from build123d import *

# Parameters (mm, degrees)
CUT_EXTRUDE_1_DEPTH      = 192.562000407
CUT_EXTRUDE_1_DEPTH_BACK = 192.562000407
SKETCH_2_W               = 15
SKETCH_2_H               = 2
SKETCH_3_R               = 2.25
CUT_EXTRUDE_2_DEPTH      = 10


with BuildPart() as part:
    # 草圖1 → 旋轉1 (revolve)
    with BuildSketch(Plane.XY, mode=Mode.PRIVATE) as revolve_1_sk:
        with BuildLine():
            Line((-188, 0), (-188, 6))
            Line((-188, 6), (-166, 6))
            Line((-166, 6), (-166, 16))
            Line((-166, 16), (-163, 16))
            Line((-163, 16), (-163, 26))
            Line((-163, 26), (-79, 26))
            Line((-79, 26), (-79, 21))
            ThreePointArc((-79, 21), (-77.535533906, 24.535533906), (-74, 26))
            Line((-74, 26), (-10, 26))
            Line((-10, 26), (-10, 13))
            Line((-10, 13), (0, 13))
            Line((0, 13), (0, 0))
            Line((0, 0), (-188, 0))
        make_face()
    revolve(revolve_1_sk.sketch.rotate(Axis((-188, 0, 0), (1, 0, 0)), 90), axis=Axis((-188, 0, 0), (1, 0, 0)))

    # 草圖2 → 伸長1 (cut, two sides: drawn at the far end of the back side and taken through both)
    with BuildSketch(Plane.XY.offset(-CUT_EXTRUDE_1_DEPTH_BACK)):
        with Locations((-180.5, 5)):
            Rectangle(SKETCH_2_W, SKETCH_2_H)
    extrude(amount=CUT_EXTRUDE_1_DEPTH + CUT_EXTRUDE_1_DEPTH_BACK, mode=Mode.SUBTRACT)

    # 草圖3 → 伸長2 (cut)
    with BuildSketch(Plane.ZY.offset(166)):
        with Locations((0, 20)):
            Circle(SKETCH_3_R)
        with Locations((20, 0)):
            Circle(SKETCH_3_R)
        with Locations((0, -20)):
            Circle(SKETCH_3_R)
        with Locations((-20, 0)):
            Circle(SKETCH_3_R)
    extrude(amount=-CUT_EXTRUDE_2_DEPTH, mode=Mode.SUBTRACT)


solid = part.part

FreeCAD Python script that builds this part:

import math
import FreeCAD as App
import Part
import Sketcher

V = App.Vector

doc = App.newDocument("Part")
body = doc.addObject("PartDesign::Body", "Body")

# Sketch on XY plane
sketch1 = body.newObject("Sketcher::SketchObject", "Sketch")
sketch1.AttachmentSupport = (doc.getObject("XY_Plane"), [""])
sketch1.MapMode = "FlatFace"
sketch1.addGeometry([
    Part.LineSegment(V(-188, 6, 0), V(-188, 0, 0)),  # 0
    Part.LineSegment(V(-188, 0, 0), V(0, 0, 0)),  # 1
    Part.LineSegment(V(0, 0, 0), V(0, 13, 0)),  # 2
    Part.LineSegment(V(0, 13, 0), V(-10, 13, 0)),  # 3
    Part.LineSegment(V(-10, 13, 0), V(-10, 26, 0)),  # 4
    Part.LineSegment(V(-10, 26, 0), V(-74, 26, 0)),  # 5
    Part.ArcOfCircle(Part.Circle(V(-74, 21, 0), V(0, 0, 1), 5), math.radians(90), math.radians(180)),  # 6
    Part.LineSegment(V(-79, 21, 0), V(-79, 26, 0)),  # 7
    Part.LineSegment(V(-79, 26, 0), V(-163, 26, 0)),  # 8
    Part.LineSegment(V(-163, 26, 0), V(-163, 16, 0)),  # 9
    Part.LineSegment(V(-163, 16, 0), V(-166, 16, 0)),  # 10
    Part.LineSegment(V(-166, 16, 0), V(-166, 6, 0)),  # 11
    Part.LineSegment(V(-166, 6, 0), V(-188, 6, 0)),  # 12
], False)
sketch1.addConstraint([
    Sketcher.Constraint("Coincident", 0, 2, 1, 1),
    Sketcher.Constraint("Coincident", 1, 2, 2, 1),
    Sketcher.Constraint("Coincident", 2, 2, 3, 1),
    Sketcher.Constraint("Coincident", 3, 2, 4, 1),
    Sketcher.Constraint("Coincident", 4, 2, 5, 1),
    Sketcher.Constraint("Tangent", 5, 2, 6, 1),
    Sketcher.Constraint("Tangent", 6, 2, 7, 1),
    Sketcher.Constraint("Coincident", 7, 2, 8, 1),
    Sketcher.Constraint("Coincident", 8, 2, 9, 1),
    Sketcher.Constraint("Coincident", 9, 2, 10, 1),
    Sketcher.Constraint("Coincident", 10, 2, 11, 1),
    Sketcher.Constraint("Coincident", 11, 2, 12, 1),
    Sketcher.Constraint("Coincident", 12, 2, 0, 1),
    Sketcher.Constraint("Vertical", 0),
    Sketcher.Constraint("Horizontal", 1),
    Sketcher.Constraint("Vertical", 2),
    Sketcher.Constraint("Horizontal", 3),
    Sketcher.Constraint("Vertical", 4),
    Sketcher.Constraint("Horizontal", 5),
    Sketcher.Constraint("Vertical", 7),
    Sketcher.Constraint("Horizontal", 8),
    Sketcher.Constraint("Vertical", 9),
    Sketcher.Constraint("Horizontal", 10),
    Sketcher.Constraint("Vertical", 11),
    Sketcher.Constraint("Horizontal", 12),
    Sketcher.Constraint("Coincident", 1, 2, -1, 1),
    Sketcher.Constraint("Horizontal", 5, 2, 7, 2),
    Sketcher.Constraint("Equal", 2, 4),
    Sketcher.Constraint("Equal", 3, 9),
    Sketcher.Constraint("Equal", 9, 11),
    Sketcher.Constraint("Radius", 6, 5.0),
    Sketcher.Constraint("DistanceX", 1, 1, 1, 2, 188.0),
    Sketcher.Constraint("DistanceX", 3, 2, 3, 1, 10.0),
    Sketcher.Constraint("DistanceX", 5, 2, 5, 1, 64.0),
    Sketcher.Constraint("DistanceX", 8, 2, 8, 1, 84.0),
    Sketcher.Constraint("DistanceX", 10, 2, 10, 1, 3.0),
    Sketcher.Constraint("DistanceY", 0, 2, 0, 1, 6.0),
])
revolution = body.newObject("PartDesign::Revolution", "Revolution")
revolution.Profile = sketch1
revolution.ReferenceAxis = (sketch1, ["H_Axis"])
revolution.Angle = 360

# Sketch on XY plane
sketch2 = body.newObject("Sketcher::SketchObject", "Sketch001")
sketch2.AttachmentSupport = (doc.getObject("XY_Plane"), [""])
sketch2.MapMode = "FlatFace"
sketch2.addGeometry([
    Part.LineSegment(V(-188, 6, 0), V(-188, 4, 0)),
    Part.LineSegment(V(-188, 4, 0), V(-173, 4, 0)),
    Part.LineSegment(V(-173, 4, 0), V(-173, 6, 0)),
    Part.LineSegment(V(-173, 6, 0), V(-188, 6, 0)),
], False)
sketch2.addConstraint([
    Sketcher.Constraint("Coincident", 0, 2, 1, 1),
    Sketcher.Constraint("Coincident", 1, 2, 2, 1),
    Sketcher.Constraint("Coincident", 2, 2, 3, 1),
    Sketcher.Constraint("Coincident", 3, 2, 0, 1),
    Sketcher.Constraint("Vertical", 0),
    Sketcher.Constraint("Horizontal", 1),
    Sketcher.Constraint("Vertical", 2),
    Sketcher.Constraint("Horizontal", 3),
    Sketcher.Constraint("DistanceX", 1, 1, 1, 2, 15.0),
    Sketcher.Constraint("DistanceY", 0, 2, 0, 1, 2.0),
    Sketcher.Constraint("DistanceX", 0, 2, -1, 1, 188.0),
    Sketcher.Constraint("DistanceY", -1, 1, 0, 2, 4.0),
])
pocket1 = body.newObject("PartDesign::Pocket", "Pocket")
pocket1.Profile = sketch2
pocket1.Type = "ThroughAll"
pocket1.Midplane = True

# Sketch on YZ plane
sketch3 = body.newObject("Sketcher::SketchObject", "Sketch002")
sketch3.AttachmentSupport = (doc.getObject("YZ_Plane"), [""])
sketch3.MapMode = "FlatFace"
sketch3.AttachmentOffset = App.Placement(V(0, 0, -166), App.Rotation())
sketch3.addGeometry([
    Part.Circle(V(20, 0, 0), V(0, 0, 1), 2.2),
    Part.Circle(V(0, 20, 0), V(0, 0, 1), 2.2),
    Part.Circle(V(-20, 0, 0), V(0, 0, 1), 2.2),
    Part.Circle(V(0, -20, 0), V(0, 0, 1), 2.2),
], False)
sketch3.addConstraint([
    Sketcher.Constraint("Equal", 0, 1),
    Sketcher.Constraint("Equal", 1, 2),
    Sketcher.Constraint("Equal", 2, 3),
    Sketcher.Constraint("Symmetric", 0, 3, 2, 3, -1, 1),
    Sketcher.Constraint("Symmetric", 1, 3, 3, 3, -1, 1),
    Sketcher.Constraint("PointOnObject", 0, 3, -1),
    Sketcher.Constraint("PointOnObject", 1, 3, -2),
    Sketcher.Constraint("Diameter", 0, 4.5),
    Sketcher.Constraint("DistanceX", -1, 1, 0, 3, 20.0),
    Sketcher.Constraint("DistanceY", -1, 1, 1, 3, 20.0),
])
pocket2 = body.newObject("PartDesign::Pocket", "Pocket001")
pocket2.Profile = sketch3
pocket2.Length = 10
pocket2.Reversed = True

doc.recompute()
